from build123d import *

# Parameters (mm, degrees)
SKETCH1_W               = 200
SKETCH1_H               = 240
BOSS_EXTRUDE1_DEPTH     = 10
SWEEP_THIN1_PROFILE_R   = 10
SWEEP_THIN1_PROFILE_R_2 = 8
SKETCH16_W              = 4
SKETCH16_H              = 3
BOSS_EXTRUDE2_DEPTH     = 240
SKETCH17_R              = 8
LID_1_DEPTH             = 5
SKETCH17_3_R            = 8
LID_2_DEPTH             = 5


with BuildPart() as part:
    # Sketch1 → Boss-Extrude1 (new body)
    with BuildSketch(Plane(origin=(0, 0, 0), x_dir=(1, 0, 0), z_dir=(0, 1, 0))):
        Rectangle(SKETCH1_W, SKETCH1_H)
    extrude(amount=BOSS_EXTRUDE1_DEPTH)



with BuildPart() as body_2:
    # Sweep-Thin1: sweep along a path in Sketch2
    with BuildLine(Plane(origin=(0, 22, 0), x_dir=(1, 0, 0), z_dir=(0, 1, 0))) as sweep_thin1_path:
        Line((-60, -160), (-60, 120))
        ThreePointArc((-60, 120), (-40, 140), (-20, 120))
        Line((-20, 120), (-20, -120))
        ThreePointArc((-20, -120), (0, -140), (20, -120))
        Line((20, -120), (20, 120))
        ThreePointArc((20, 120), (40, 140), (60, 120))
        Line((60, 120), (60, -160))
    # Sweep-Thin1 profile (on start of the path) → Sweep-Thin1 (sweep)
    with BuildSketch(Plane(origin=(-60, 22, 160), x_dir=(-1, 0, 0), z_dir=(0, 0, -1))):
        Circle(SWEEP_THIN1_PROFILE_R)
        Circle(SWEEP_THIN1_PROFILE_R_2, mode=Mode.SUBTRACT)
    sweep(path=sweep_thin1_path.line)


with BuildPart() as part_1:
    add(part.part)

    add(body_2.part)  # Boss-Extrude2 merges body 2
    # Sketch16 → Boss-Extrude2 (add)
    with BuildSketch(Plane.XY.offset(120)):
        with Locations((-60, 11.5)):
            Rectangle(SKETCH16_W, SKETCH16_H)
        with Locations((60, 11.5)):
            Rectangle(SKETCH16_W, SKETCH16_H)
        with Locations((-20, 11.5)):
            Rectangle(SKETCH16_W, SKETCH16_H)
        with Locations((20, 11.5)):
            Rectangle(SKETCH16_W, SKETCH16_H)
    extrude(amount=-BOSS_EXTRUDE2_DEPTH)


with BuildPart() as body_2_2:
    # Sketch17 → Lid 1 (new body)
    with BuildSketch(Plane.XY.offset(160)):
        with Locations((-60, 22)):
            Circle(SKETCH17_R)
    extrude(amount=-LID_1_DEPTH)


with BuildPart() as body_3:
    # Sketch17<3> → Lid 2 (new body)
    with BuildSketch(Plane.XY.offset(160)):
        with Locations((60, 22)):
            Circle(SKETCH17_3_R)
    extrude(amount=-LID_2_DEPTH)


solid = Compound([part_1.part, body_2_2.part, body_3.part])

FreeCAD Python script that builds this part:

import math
import FreeCAD as App
import Part
import Sketcher

V = App.Vector
Q = App.Units.Quantity

doc = App.newDocument("Part")
body = doc.addObject("PartDesign::Body", "Body")

sketch1 = doc.addObject("Sketcher::SketchObject", "Sketch")
body.addObject(sketch1)
sketch1.AttachmentSupport = (doc.XZ_Plane, [""])
sketch1.MapMode = "FlatFace"
sketch1.addGeometry(Part.LineSegment(V(-100, -120, 0), V(-100, 120, 0)), False)
sketch1.addGeometry(Part.LineSegment(V(-100, 120, 0), V(100, 120, 0)), False)
sketch1.addGeometry(Part.LineSegment(V(100, 120, 0), V(100, -120, 0)), False)
sketch1.addGeometry(Part.LineSegment(V(100, -120, 0), V(-100, -120, 0)), False)
sketch1.addConstraint(Sketcher.Constraint("Coincident", 0, 2, 1, 1))
sketch1.addConstraint(Sketcher.Constraint("Coincident", 1, 2, 2, 1))
sketch1.addConstraint(Sketcher.Constraint("Coincident", 2, 2, 3, 1))
sketch1.addConstraint(Sketcher.Constraint("Coincident", 3, 2, 0, 1))
sketch1.addConstraint(Sketcher.Constraint("Vertical", 0))
sketch1.addConstraint(Sketcher.Constraint("Horizontal", 1))
sketch1.addConstraint(Sketcher.Constraint("Vertical", 2))
sketch1.addConstraint(Sketcher.Constraint("Horizontal", 3))
sketch1.addConstraint(Sketcher.Constraint("Symmetric", 0, 2, 2, 2, -1, 1))
sketch1.addConstraint(Sketcher.Constraint("DistanceX", 1, 1, 1, 2, Q("200 mm")))
sketch1.addConstraint(Sketcher.Constraint("DistanceY", 0, 1, 0, 2, Q("240 mm")))
pad1 = doc.addObject("PartDesign::Pad", "Pad")
body.addObject(pad1)
pad1.Profile = sketch1
pad1.Length = 10
pad1.Reversed = True
body2 = doc.addObject("PartDesign::Body", "Body001")

sketch2 = doc.addObject("Sketcher::SketchObject", "Sketch001")
body2.addObject(sketch2)
sketch2.AttachmentSupport = (doc.getObject("XY_Plane001"), [""])
sketch2.MapMode = "FlatFace"
sketch2.AttachmentOffset = App.Placement(V(0, 0, 160), App.Rotation())
sketch2.addGeometry(Part.Circle(V(-60, 22, 0), V(0, 0, 1), 10), False)
sketch2.addGeometry(Part.Circle(V(-60, 22, 0), V(0, 0, 1), 8), False)
sketch2.addConstraint(Sketcher.Constraint("Coincident", 1, 3, 0, 3))
sketch2.addConstraint(Sketcher.Constraint("Diameter", 0, Q("20 mm")))
sketch2.addConstraint(Sketcher.Constraint("Diameter", 1, Q("16 mm")))
sketch2.addConstraint(Sketcher.Constraint("DistanceX", 0, 3, -1, 1, Q("60 mm")))
sketch2.addConstraint(Sketcher.Constraint("DistanceY", -1, 1, 0, 3, Q("22 mm")))

sketch3 = doc.addObject("Sketcher::SketchObject", "Sketch002")
body2.addObject(sketch3)
sketch3.AttachmentSupport = (doc.getObject("XZ_Plane001"), [""])
sketch3.MapMode = "FlatFace"
sketch3.AttachmentOffset = App.Placement(V(0, 0, -22), App.Rotation())
sketch3.addGeometry(Part.LineSegment(V(-60, 160, 0), V(-60, -120, 0)), False)
sketch3.addGeometry(Part.ArcOfCircle(Part.Circle(V(-40, -120, 0), V(0, 0, 1), 20), math.radians(180), math.radians(360)), False)
sketch3.addGeometry(Part.LineSegment(V(-20, -120, 0), V(-20, 120, 0)), False)
sketch3.addGeometry(Part.ArcOfCircle(Part.Circle(V(0, 120, 0), V(0, 0, 1), 20), math.radians(0), math.radians(180)), False)
sketch3.addGeometry(Part.LineSegment(V(20, 120, 0), V(20, -120, 0)), False)
sketch3.addGeometry(Part.ArcOfCircle(Part.Circle(V(40, -120, 0), V(0, 0, 1), 20), math.radians(180), math.radians(360)), False)
sketch3.addGeometry(Part.LineSegment(V(60, -120, 0), V(60, 160, 0)), False)
sketch3.addConstraint(Sketcher.Constraint("Tangent", 0, 2, 1, 1))
sketch3.addConstraint(Sketcher.Constraint("Tangent", 1, 2, 2, 1))
sketch3.addConstraint(Sketcher.Constraint("Tangent", 2, 2, 3, 2))
sketch3.addConstraint(Sketcher.Constraint("Tangent", 3, 1, 4, 1))
sketch3.addConstraint(Sketcher.Constraint("Tangent", 4, 2, 5, 1))
sketch3.addConstraint(Sketcher.Constraint("Tangent", 5, 2, 6, 1))
sketch3.addConstraint(Sketcher.Constraint("Vertical", 0))
sketch3.addConstraint(Sketcher.Constraint("Vertical", 2))
sketch3.addConstraint(Sketcher.Constraint("Vertical", 4))
sketch3.addConstraint(Sketcher.Constraint("Vertical", 6))
sketch3.addConstraint(Sketcher.Constraint("Equal", 1, 3))
sketch3.addConstraint(Sketcher.Constraint("Equal", 3, 5))
sketch3.addConstraint(Sketcher.Constraint("Symmetric", 1, 2, 3, 1, -1, 1))
sketch3.addConstraint(Sketcher.Constraint("Horizontal", 1, 3, 5, 3))
sketch3.addConstraint(Sketcher.Constraint("Horizontal", 0, 1, 6, 2))
sketch3.addConstraint(Sketcher.Constraint("Radius", 1, Q("20 mm")))
sketch3.addConstraint(Sketcher.Constraint("DistanceY", 0, 2, 0, 1, Q("280 mm")))
sketch3.addConstraint(Sketcher.Constraint("DistanceY", 2, 1, 2, 2, Q("240 mm")))
doc.recompute()

additivepipe = doc.addObject("PartDesign::AdditivePipe", "AdditivePipe")
body2.addObject(additivepipe)
additivepipe.Profile = sketch2
additivepipe.Spine = (sketch3, ["Edge1", "Edge2", "Edge3", "Edge4", "Edge5", "Edge6", "Edge7"])
body.AllowCompound = True
doc.recompute()

boolean = doc.addObject("PartDesign::Boolean", "Boolean")
body.addObject(boolean)
boolean.Type = "Fuse"
boolean.addObjects([body2])

sketch4 = doc.addObject("Sketcher::SketchObject", "Sketch003")
body.addObject(sketch4)
sketch4.AttachmentSupport = (doc.XY_Plane, [""])
sketch4.MapMode = "FlatFace"
sketch4.AttachmentOffset = App.Placement(V(0, 0, 120), App.Rotation())
sketch4.addGeometry(Part.LineSegment(V(-62, 13, 0), V(-62, 10, 0)), False)
sketch4.addGeometry(Part.LineSegment(V(-62, 10, 0), V(-58, 10, 0)), False)
sketch4.addGeometry(Part.LineSegment(V(-58, 10, 0), V(-58, 13, 0)), False)
sketch4.addGeometry(Part.LineSegment(V(-58, 13, 0), V(-62, 13, 0)), False)
sketch4.addGeometry(Part.LineSegment(V(58, 13, 0), V(58, 10, 0)), False)
sketch4.addGeometry(Part.LineSegment(V(58, 10, 0), V(62, 10, 0)), False)
sketch4.addGeometry(Part.LineSegment(V(62, 10, 0), V(62, 13, 0)), False)
sketch4.addGeometry(Part.LineSegment(V(62, 13, 0), V(58, 13, 0)), False)
sketch4.addGeometry(Part.LineSegment(V(-22, 13, 0), V(-22, 10, 0)), False)
sketch4.addGeometry(Part.LineSegment(V(-22, 10, 0), V(-18, 10, 0)), False)
sketch4.addGeometry(Part.LineSegment(V(-18, 10, 0), V(-18, 13, 0)), False)
sketch4.addGeometry(Part.LineSegment(V(-18, 13, 0), V(-22, 13, 0)), False)
sketch4.addGeometry(Part.LineSegment(V(18, 13, 0), V(18, 10, 0)), False)
sketch4.addGeometry(Part.LineSegment(V(18, 10, 0), V(22, 10, 0)), False)
sketch4.addGeometry(Part.LineSegment(V(22, 10, 0), V(22, 13, 0)), False)
sketch4.addGeometry(Part.LineSegment(V(22, 13, 0), V(18, 13, 0)), False)
sketch4.addConstraint(Sketcher.Constraint("Coincident", 0, 2, 1, 1))
sketch4.addConstraint(Sketcher.Constraint("Coincident", 1, 2, 2, 1))
sketch4.addConstraint(Sketcher.Constraint("Coincident", 2, 2, 3, 1))
sketch4.addConstraint(Sketcher.Constraint("Coincident", 3, 2, 0, 1))
sketch4.addConstraint(Sketcher.Constraint("Coincident", 4, 2, 5, 1))
sketch4.addConstraint(Sketcher.Constraint("Coincident", 5, 2, 6, 1))
sketch4.addConstraint(Sketcher.Constraint("Coincident", 6, 2, 7, 1))
sketch4.addConstraint(Sketcher.Constraint("Coincident", 7, 2, 4, 1))
sketch4.addConstraint(Sketcher.Constraint("Coincident", 8, 2, 9, 1))
sketch4.addConstraint(Sketcher.Constraint("Coincident", 9, 2, 10, 1))
sketch4.addConstraint(Sketcher.Constraint("Coincident", 10, 2, 11, 1))
sketch4.addConstraint(Sketcher.Constraint("Coincident", 11, 2, 8, 1))
sketch4.addConstraint(Sketcher.Constraint("Coincident", 12, 2, 13, 1))
sketch4.addConstraint(Sketcher.Constraint("Coincident", 13, 2, 14, 1))
sketch4.addConstraint(Sketcher.Constraint("Coincident", 14, 2, 15, 1))
sketch4.addConstraint(Sketcher.Constraint("Coincident", 15, 2, 12, 1))
sketch4.addConstraint(Sketcher.Constraint("Vertical", 0))
sketch4.addConstraint(Sketcher.Constraint("Horizontal", 1))
sketch4.addConstraint(Sketcher.Constraint("Vertical", 2))
sketch4.addConstraint(Sketcher.Constraint("Horizontal", 3))
sketch4.addConstraint(Sketcher.Constraint("Vertical", 4))
sketch4.addConstraint(Sketcher.Constraint("Horizontal", 5))
sketch4.addConstraint(Sketcher.Constraint("Vertical", 6))
sketch4.addConstraint(Sketcher.Constraint("Horizontal", 7))
sketch4.addConstraint(Sketcher.Constraint("Vertical", 8))
sketch4.addConstraint(Sketcher.Constraint("Horizontal", 9))
sketch4.addConstraint(Sketcher.Constraint("Vertical", 10))
sketch4.addConstraint(Sketcher.Constraint("Horizontal", 11))
sketch4.addConstraint(Sketcher.Constraint("Vertical", 12))
sketch4.addConstraint(Sketcher.Constraint("Horizontal", 13))
sketch4.addConstraint(Sketcher.Constraint("Vertical", 14))
sketch4.addConstraint(Sketcher.Constraint("Horizontal", 15))
sketch4.addConstraint(Sketcher.Constraint("Symmetric", 1, 2, 4, 2, -2))
sketch4.addConstraint(Sketcher.Constraint("Symmetric", 3, 2, 6, 2, -2))
sketch4.addConstraint(Sketcher.Constraint("Symmetric", 9, 2, 12, 2, -2))
sketch4.addConstraint(Sketcher.Constraint("Symmetric", 11, 2, 14, 2, -2))
sketch4.addConstraint(Sketcher.Constraint("Horizontal", 5, 2, 8, 2))
sketch4.addConstraint(Sketcher.Constraint("Horizontal", 7, 2, 10, 2))
sketch4.addConstraint(Sketcher.Constraint("Equal", 7, 9))
sketch4.addConstraint(Sketcher.Constraint("DistanceX", 1, 1, 1, 2, Q("4 mm")))
sketch4.addConstraint(Sketcher.Constraint("DistanceY", 0, 2, 0, 1, Q("3 mm")))
sketch4.addConstraint(Sketcher.Constraint("DistanceX", 0, 2, -1, 1, Q("62 mm")))
sketch4.addConstraint(Sketcher.Constraint("DistanceY", -1, 1, 0, 2, Q("10 mm")))
sketch4.addConstraint(Sketcher.Constraint("DistanceX", 8, 2, -1, 1, Q("22 mm")))
pad2 = doc.addObject("PartDesign::Pad", "Pad001")
body.addObject(pad2)
pad2.Profile = sketch4
pad2.Length = 240
pad2.Reversed = True
body3 = doc.addObject("PartDesign::Body", "Body002")

sketch5 = doc.addObject("Sketcher::SketchObject", "Sketch004")
body3.addObject(sketch5)
sketch5.AttachmentSupport = (doc.getObject("XY_Plane002"), [""])
sketch5.MapMode = "FlatFace"
sketch5.AttachmentOffset = App.Placement(V(0, 0, 160), App.Rotation())
sketch5.addGeometry(Part.Circle(V(-60, 22, 0), V(0, 0, 1), 8), False)
sketch5.addConstraint(Sketcher.Constraint("Diameter", 0, Q("16 mm")))
sketch5.addConstraint(Sketcher.Constraint("DistanceX", 0, 3, -1, 1, Q("60 mm")))
sketch5.addConstraint(Sketcher.Constraint("DistanceY", -1, 1, 0, 3, Q("22 mm")))
pad3 = doc.addObject("PartDesign::Pad", "Pad002")
body3.addObject(pad3)
pad3.Profile = sketch5
pad3.Length = 5
pad3.Reversed = True
body4 = doc.addObject("PartDesign::Body", "Body003")

sketch6 = doc.addObject("Sketcher::SketchObject", "Sketch005")
body4.addObject(sketch6)
sketch6.AttachmentSupport = (doc.getObject("XY_Plane003"), [""])
sketch6.MapMode = "FlatFace"
sketch6.AttachmentOffset = App.Placement(V(0, 0, 160), App.Rotation())
sketch6.addGeometry(Part.Circle(V(60, 22, 0), V(0, 0, 1), 8), False)
sketch6.addConstraint(Sketcher.Constraint("Diameter", 0, Q("16 mm")))
sketch6.addConstraint(Sketcher.Constraint("DistanceX", -1, 1, 0, 3, Q("60 mm")))
sketch6.addConstraint(Sketcher.Constraint("DistanceY", -1, 1, 0, 3, Q("22 mm")))
pad4 = doc.addObject("PartDesign::Pad", "Pad003")
body4.addObject(pad4)
pad4.Profile = sketch6
pad4.Length = 5
pad4.Reversed = True

doc.recompute()
